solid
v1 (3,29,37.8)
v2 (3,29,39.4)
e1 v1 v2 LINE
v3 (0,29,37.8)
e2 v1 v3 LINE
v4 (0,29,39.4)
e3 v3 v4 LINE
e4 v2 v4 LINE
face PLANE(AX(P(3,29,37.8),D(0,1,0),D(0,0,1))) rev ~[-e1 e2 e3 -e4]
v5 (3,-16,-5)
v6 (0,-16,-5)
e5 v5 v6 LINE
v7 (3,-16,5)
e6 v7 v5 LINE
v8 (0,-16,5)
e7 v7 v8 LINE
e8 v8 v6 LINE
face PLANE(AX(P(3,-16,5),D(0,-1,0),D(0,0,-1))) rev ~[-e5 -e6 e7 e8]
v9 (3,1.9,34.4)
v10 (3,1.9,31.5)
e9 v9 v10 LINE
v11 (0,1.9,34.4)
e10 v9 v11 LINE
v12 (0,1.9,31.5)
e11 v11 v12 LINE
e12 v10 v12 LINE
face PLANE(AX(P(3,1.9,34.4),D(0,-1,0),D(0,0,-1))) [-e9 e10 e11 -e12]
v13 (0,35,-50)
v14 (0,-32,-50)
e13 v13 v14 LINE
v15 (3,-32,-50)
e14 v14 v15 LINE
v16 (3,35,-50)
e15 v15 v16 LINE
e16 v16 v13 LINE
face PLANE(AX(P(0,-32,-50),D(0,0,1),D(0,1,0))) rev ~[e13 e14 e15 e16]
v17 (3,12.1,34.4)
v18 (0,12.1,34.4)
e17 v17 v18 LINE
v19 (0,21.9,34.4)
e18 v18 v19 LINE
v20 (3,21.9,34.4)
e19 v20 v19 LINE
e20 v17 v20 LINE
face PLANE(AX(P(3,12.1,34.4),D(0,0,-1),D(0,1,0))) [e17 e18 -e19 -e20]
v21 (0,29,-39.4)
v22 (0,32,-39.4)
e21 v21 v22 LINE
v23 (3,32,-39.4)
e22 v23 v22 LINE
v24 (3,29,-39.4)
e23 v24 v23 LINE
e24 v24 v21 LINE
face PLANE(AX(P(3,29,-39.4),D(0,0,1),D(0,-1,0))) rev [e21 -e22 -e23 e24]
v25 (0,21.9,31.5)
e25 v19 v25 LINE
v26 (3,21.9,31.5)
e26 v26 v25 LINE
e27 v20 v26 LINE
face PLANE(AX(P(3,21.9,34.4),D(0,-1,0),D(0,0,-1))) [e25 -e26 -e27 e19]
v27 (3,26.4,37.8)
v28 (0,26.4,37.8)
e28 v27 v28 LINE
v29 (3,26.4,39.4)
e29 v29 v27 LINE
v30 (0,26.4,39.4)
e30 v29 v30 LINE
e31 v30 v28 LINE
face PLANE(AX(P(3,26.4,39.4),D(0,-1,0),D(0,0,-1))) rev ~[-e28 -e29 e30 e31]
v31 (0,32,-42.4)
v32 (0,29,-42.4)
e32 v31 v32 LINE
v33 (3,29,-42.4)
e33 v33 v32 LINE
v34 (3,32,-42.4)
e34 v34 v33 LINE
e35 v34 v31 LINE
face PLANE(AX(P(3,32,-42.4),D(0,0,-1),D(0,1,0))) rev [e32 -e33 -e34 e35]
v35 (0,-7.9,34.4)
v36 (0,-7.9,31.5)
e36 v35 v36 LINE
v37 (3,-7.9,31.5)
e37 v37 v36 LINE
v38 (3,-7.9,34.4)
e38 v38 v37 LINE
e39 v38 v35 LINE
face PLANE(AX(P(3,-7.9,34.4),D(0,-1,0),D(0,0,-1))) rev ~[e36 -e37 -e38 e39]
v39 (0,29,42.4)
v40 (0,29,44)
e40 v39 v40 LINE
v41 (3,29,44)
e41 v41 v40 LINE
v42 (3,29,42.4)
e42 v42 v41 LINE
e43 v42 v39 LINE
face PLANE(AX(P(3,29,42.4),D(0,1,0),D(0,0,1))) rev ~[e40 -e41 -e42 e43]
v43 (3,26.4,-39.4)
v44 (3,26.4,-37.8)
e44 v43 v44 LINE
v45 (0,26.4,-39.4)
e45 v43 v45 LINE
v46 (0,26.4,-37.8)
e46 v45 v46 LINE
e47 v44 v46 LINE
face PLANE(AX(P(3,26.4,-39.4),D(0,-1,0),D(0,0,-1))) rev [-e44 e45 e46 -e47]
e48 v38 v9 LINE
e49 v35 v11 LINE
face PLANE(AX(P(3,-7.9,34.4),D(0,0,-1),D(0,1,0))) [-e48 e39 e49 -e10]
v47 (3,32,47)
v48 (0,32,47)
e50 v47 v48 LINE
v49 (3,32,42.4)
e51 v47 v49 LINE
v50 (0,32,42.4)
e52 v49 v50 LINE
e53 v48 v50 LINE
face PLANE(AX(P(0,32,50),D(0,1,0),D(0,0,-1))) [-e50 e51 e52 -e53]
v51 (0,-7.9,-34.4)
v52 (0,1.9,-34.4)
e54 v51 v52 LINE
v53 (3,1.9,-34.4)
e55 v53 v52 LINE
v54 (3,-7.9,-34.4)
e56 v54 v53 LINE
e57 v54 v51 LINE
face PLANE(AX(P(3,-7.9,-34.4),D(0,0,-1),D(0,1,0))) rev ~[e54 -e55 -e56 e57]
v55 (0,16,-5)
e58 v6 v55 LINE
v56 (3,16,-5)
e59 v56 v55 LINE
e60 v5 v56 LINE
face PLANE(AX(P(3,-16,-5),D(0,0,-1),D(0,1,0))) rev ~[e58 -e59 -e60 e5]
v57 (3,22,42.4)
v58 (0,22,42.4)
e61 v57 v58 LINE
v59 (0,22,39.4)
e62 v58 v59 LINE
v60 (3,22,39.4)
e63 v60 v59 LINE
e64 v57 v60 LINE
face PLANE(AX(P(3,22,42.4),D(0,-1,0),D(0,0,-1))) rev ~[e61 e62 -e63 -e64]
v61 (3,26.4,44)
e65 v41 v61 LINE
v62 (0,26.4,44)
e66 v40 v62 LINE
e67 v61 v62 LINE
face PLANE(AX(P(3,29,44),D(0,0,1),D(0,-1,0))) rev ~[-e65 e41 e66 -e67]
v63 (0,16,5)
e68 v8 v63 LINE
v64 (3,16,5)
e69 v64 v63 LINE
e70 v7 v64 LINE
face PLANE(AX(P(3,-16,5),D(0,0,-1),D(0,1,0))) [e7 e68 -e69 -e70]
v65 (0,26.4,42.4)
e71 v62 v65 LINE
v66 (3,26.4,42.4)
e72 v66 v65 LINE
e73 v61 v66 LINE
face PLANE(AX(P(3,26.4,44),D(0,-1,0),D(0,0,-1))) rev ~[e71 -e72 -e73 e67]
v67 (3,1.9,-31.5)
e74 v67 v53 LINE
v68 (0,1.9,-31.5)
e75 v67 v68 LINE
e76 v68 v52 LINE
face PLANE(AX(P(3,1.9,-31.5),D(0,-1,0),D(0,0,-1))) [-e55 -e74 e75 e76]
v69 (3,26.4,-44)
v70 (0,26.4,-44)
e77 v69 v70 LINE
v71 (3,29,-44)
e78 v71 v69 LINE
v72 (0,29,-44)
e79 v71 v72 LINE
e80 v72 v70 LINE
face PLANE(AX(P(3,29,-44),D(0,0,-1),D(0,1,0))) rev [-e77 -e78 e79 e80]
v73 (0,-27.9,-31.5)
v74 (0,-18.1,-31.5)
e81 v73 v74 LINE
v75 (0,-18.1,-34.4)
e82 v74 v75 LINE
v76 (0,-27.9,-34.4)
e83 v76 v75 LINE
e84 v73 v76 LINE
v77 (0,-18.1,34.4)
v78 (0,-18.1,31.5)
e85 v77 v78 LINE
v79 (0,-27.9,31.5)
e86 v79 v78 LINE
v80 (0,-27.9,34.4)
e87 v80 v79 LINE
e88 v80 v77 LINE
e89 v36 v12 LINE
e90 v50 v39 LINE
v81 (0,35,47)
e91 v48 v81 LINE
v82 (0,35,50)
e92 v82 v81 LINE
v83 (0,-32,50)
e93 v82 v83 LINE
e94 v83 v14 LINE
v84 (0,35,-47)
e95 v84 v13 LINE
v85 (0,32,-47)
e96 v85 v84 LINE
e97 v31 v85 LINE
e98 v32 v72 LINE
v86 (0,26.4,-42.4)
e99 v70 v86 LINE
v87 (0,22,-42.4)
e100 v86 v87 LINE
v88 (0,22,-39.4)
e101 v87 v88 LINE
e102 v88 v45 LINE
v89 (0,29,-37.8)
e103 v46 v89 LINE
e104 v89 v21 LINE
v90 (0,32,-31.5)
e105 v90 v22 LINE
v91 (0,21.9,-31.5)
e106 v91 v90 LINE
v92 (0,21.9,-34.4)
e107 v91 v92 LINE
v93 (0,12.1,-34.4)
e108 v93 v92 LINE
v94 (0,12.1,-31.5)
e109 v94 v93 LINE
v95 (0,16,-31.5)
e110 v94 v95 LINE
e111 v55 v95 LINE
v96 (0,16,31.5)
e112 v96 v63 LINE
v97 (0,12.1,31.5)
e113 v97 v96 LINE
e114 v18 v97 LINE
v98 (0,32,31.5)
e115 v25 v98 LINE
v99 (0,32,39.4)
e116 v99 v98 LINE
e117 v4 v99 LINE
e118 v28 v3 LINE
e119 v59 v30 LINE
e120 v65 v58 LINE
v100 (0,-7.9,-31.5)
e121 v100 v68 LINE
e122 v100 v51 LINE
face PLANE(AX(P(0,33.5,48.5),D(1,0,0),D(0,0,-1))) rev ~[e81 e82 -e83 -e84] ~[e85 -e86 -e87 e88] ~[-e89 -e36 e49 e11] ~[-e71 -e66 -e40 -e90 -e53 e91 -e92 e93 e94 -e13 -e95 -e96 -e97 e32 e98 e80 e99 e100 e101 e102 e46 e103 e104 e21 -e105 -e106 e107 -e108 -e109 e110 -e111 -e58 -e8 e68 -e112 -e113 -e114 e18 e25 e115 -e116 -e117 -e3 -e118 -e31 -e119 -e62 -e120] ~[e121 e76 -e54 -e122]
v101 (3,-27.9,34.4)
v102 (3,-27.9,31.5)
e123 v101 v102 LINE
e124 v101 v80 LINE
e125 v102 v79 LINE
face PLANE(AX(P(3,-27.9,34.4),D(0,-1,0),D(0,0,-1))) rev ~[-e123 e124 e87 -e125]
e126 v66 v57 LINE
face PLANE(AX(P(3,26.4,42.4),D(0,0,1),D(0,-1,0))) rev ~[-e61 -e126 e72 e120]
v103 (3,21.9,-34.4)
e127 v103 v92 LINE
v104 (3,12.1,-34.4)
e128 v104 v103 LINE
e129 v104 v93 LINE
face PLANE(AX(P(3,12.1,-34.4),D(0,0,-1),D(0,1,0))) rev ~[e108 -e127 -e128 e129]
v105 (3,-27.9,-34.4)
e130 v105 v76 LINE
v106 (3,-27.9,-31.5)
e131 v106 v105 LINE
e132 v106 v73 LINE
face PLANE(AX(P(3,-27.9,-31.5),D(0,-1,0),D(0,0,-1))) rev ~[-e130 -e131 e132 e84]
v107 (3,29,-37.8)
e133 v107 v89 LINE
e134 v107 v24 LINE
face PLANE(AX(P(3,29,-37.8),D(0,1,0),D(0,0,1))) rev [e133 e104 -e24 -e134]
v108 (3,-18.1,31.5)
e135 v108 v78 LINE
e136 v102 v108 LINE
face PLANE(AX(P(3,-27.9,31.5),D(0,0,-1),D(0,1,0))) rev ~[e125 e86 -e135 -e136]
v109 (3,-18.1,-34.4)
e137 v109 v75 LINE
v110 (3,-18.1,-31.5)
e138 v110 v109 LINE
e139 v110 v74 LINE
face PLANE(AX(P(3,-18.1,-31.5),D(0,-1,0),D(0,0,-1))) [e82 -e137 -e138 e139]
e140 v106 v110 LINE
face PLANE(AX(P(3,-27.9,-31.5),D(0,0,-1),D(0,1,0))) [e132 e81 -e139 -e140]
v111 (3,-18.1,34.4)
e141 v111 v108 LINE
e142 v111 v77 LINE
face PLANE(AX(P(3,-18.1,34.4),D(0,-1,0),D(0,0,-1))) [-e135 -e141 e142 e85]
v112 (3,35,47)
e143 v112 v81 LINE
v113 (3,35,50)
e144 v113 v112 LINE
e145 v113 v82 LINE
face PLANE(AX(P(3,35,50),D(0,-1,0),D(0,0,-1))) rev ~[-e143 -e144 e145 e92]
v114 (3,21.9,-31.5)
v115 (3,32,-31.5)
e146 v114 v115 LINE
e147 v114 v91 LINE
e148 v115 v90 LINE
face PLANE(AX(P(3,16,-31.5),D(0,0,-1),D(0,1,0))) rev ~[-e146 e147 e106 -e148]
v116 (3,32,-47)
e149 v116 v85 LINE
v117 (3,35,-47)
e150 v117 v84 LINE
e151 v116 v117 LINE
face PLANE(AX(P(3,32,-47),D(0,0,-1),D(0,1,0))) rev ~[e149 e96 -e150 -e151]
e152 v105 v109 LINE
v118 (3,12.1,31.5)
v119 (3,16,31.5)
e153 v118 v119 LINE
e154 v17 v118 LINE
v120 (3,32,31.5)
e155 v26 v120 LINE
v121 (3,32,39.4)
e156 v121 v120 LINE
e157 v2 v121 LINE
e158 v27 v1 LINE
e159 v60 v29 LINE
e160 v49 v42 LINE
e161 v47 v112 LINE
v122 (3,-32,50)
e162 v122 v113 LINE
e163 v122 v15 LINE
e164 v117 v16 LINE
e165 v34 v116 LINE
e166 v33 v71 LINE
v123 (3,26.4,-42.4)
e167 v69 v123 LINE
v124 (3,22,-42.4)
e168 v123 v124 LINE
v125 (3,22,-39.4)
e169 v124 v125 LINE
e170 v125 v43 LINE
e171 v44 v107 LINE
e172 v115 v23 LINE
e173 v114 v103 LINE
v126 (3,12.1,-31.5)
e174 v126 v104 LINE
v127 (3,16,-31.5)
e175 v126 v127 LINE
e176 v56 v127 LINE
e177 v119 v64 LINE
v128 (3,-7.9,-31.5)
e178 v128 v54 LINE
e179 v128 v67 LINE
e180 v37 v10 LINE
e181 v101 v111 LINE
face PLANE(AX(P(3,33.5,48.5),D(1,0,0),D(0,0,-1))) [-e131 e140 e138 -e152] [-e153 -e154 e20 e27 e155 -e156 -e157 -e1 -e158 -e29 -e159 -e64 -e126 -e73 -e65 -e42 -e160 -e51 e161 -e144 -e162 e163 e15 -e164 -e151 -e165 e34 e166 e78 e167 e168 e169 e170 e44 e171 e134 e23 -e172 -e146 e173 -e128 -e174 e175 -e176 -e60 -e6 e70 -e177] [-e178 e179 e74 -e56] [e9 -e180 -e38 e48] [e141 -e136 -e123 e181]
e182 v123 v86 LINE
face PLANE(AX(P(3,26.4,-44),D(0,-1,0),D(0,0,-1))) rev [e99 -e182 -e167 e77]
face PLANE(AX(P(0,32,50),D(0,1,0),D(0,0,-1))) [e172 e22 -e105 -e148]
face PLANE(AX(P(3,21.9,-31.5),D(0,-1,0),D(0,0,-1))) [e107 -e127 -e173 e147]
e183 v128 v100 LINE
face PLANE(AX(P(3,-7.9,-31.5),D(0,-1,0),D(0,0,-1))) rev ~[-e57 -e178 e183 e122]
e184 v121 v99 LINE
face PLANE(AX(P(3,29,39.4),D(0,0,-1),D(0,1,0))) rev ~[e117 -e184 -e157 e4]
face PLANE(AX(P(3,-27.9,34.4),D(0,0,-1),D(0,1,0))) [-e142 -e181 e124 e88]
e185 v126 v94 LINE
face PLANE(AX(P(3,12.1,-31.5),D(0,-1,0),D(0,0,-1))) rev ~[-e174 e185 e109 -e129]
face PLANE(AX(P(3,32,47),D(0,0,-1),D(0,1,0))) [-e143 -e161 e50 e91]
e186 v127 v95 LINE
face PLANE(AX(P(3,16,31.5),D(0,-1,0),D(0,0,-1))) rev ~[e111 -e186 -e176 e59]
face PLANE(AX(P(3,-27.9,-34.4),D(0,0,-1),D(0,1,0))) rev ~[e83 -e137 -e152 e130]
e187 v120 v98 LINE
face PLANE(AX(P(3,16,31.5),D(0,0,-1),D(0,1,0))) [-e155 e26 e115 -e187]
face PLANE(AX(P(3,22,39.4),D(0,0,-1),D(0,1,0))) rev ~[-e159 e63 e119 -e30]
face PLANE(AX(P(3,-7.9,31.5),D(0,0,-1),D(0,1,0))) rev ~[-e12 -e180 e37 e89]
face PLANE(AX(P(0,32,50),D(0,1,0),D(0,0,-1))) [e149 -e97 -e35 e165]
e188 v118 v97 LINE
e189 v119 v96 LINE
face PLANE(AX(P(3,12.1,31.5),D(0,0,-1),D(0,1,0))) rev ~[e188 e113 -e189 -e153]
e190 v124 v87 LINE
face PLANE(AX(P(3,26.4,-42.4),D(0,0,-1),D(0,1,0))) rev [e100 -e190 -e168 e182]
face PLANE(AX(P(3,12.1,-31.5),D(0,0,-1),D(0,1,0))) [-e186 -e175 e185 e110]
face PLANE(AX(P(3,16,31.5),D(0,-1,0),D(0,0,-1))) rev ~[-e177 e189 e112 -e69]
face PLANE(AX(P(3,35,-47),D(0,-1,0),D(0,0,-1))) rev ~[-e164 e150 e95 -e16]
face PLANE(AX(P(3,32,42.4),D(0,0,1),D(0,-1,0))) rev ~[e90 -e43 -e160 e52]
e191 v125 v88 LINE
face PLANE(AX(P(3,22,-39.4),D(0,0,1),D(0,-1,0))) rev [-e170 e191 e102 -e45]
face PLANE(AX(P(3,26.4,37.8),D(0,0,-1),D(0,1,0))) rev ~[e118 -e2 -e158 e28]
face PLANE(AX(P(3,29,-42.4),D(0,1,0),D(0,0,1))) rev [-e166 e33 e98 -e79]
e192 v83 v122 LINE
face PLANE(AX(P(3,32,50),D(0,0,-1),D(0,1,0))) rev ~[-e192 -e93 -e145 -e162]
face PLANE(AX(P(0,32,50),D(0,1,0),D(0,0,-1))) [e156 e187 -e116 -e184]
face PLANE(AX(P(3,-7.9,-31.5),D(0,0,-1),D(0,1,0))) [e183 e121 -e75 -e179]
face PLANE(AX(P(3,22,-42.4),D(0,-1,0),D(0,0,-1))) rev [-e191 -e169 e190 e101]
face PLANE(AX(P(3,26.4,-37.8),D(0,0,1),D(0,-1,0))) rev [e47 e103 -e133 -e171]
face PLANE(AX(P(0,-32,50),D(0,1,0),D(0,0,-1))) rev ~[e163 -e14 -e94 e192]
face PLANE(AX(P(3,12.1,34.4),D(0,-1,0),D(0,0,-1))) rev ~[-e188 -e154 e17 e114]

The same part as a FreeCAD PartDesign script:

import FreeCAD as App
import Part
import Sketcher
Q = App.Units.Quantity


def add_polygon(sketch, points):
    """Adds a closed chain of lines whose ends are joined by coincident constraints."""
    first, n = sketch.GeometryCount, len(points)
    for a, b in zip(points, points[1:] + points[:1]):
        sketch.addGeometry(Part.LineSegment(App.Vector(*a, 0), App.Vector(*b, 0)), False)
    for i in range(n):
        sketch.addConstraint(Sketcher.Constraint("Coincident", first + i, 2, first + (i + 1) % n, 1))

doc = App.newDocument("Part")
body = doc.addObject("PartDesign::Body", "Body")

# Sketch on YZ plane
sketch1 = body.newObject("Sketcher::SketchObject", "Sketch")
sketch1.AttachmentSupport = (doc.getObject("YZ_Plane"), [""])
sketch1.MapMode = "FlatFace"
add_polygon(sketch1, [(32, 50), (-32, 50), (-32, -50), (32, -50)])  # lines 0-3
sketch1.addConstraint(Sketcher.Constraint("Horizontal", 0))
sketch1.addConstraint(Sketcher.Constraint("Vertical", 1))
sketch1.addConstraint(Sketcher.Constraint("Horizontal", 2))
sketch1.addConstraint(Sketcher.Constraint("Vertical", 3))
sketch1.addConstraint(Sketcher.Constraint("Symmetric", 0, 2, 2, 2, -1, 1))
sketch1.addConstraint(Sketcher.Constraint("DistanceX", 0, 2, 0, 1, Q("64 mm")))
sketch1.addConstraint(Sketcher.Constraint("DistanceY", 1, 2, 1, 1, Q("100 mm")))
pad1 = body.newObject("PartDesign::Pad", "Pad")
pad1.Profile = sketch1
pad1.Length = 3

# Sketch on YZ plane
sketch2 = body.newObject("Sketcher::SketchObject", "Sketch001")
sketch2.AttachmentSupport = (doc.getObject("YZ_Plane"), [""])
sketch2.MapMode = "FlatFace"
sketch2.AttachmentOffset = App.Placement(App.Vector(0, 0, 3), App.Rotation())
add_polygon(sketch2, [(21.9, 34.4), (12.1, 34.4), (12.1, 31.5), (21.9, 31.5)])  # lines 0-3
add_polygon(sketch2, [(1.9, 34.4), (-7.9, 34.4), (-7.9, 31.5), (1.9, 31.5)])  # lines 4-7
add_polygon(sketch2, [(-18.1, 34.4), (-27.9, 34.4), (-27.9, 31.5), (-18.1, 31.5)])  # lines 8-11
add_polygon(sketch2, [(-18.1, -31.5), (-27.9, -31.5), (-27.9, -34.4), (-18.1, -34.4)])  # lines 12-15
add_polygon(sketch2, [(1.9, -31.5), (-7.9, -31.5), (-7.9, -34.4), (1.9, -34.4)])  # lines 16-19
add_polygon(sketch2, [(21.9, -31.5), (12.1, -31.5), (12.1, -34.4), (21.9, -34.4)])  # lines 20-23
sketch2.addConstraint(Sketcher.Constraint("Horizontal", 0))
sketch2.addConstraint(Sketcher.Constraint("Vertical", 1))
sketch2.addConstraint(Sketcher.Constraint("Horizontal", 2))
sketch2.addConstraint(Sketcher.Constraint("Vertical", 3))
sketch2.addConstraint(Sketcher.Constraint("Horizontal", 4))
sketch2.addConstraint(Sketcher.Constraint("Vertical", 5))
sketch2.addConstraint(Sketcher.Constraint("Horizontal", 6))
sketch2.addConstraint(Sketcher.Constraint("Vertical", 7))
sketch2.addConstraint(Sketcher.Constraint("Horizontal", 8))
sketch2.addConstraint(Sketcher.Constraint("Vertical", 9))
sketch2.addConstraint(Sketcher.Constraint("Horizontal", 10))
sketch2.addConstraint(Sketcher.Constraint("Vertical", 11))
sketch2.addConstraint(Sketcher.Constraint("Horizontal", 12))
sketch2.addConstraint(Sketcher.Constraint("Vertical", 13))
sketch2.addConstraint(Sketcher.Constraint("Horizontal", 14))
sketch2.addConstraint(Sketcher.Constraint("Vertical", 15))
sketch2.addConstraint(Sketcher.Constraint("Horizontal", 16))
sketch2.addConstraint(Sketcher.Constraint("Vertical", 17))
sketch2.addConstraint(Sketcher.Constraint("Horizontal", 18))
sketch2.addConstraint(Sketcher.Constraint("Vertical", 19))
sketch2.addConstraint(Sketcher.Constraint("Horizontal", 20))
sketch2.addConstraint(Sketcher.Constraint("Vertical", 21))
sketch2.addConstraint(Sketcher.Constraint("Horizontal", 22))
sketch2.addConstraint(Sketcher.Constraint("Vertical", 23))
sketch2.addConstraint(Sketcher.Constraint("Symmetric", 9, 2, 12, 2, -1))
sketch2.addConstraint(Sketcher.Constraint("Symmetric", 11, 2, 14, 2, -1))
sketch2.addConstraint(Sketcher.Constraint("Symmetric", 5, 2, 16, 2, -1))
sketch2.addConstraint(Sketcher.Constraint("Symmetric", 7, 2, 18, 2, -1))
sketch2.addConstraint(Sketcher.Constraint("Symmetric", 1, 2, 20, 2, -1))
sketch2.addConstraint(Sketcher.Constraint("Symmetric", 3, 2, 22, 2, -1))
sketch2.addConstraint(Sketcher.Constraint("Horizontal", 3, 2, 4, 2))
sketch2.addConstraint(Sketcher.Constraint("Horizontal", 2, 2, 5, 2))
sketch2.addConstraint(Sketcher.Constraint("Horizontal", 7, 2, 8, 2))
sketch2.addConstraint(Sketcher.Constraint("Horizontal", 6, 2, 9, 2))
sketch2.addConstraint(Sketcher.Constraint("Equal", 2, 4))
sketch2.addConstraint(Sketcher.Constraint("Equal", 6, 8))
sketch2.addConstraint(Sketcher.Constraint("DistanceX", 0, 2, 0, 1, Q("9.8 mm")))
sketch2.addConstraint(Sketcher.Constraint("DistanceY", 1, 2, 1, 1, Q("2.9 mm")))
sketch2.addConstraint(Sketcher.Constraint("DistanceX", 4, 2, 0, 2, Q("20 mm")))
sketch2.addConstraint(Sketcher.Constraint("DistanceX", 8, 2, 4, 2, Q("20 mm")))
sketch2.addConstraint(Sketcher.Constraint("DistanceY", 12, 2, 9, 2, Q("63 mm")))
sketch2.addConstraint(Sketcher.Constraint("DistanceX", -1, 1, 0, 2, Q("12.1 mm")))
pocket1 = body.newObject("PartDesign::Pocket", "Pocket")
pocket1.Profile = sketch2
pocket1.Length = 3

# Sketch on YZ plane
sketch3 = body.newObject("Sketcher::SketchObject", "Sketch002")
sketch3.AttachmentSupport = (doc.getObject("YZ_Plane"), [""])
sketch3.MapMode = "FlatFace"
sketch3.AttachmentOffset = App.Placement(App.Vector(0, 0, 3), App.Rotation())
add_polygon(sketch3, [(32, 42.4), (29, 42.4), (29, 44), (26.4, 44), (26.4, 42.4), (22, 42.4), (22, 39.4), (26.4, 39.4), (26.4, 37.8), (29, 37.8), (29, 39.4), (32, 39.4)])  # lines 0-11
sketch3.addConstraint(Sketcher.Constraint("Horizontal", 0))
sketch3.addConstraint(Sketcher.Constraint("Vertical", 1))
sketch3.addConstraint(Sketcher.Constraint("Horizontal", 2))
sketch3.addConstraint(Sketcher.Constraint("Vertical", 3))
sketch3.addConstraint(Sketcher.Constraint("Horizontal", 4))
sketch3.addConstraint(Sketcher.Constraint("Vertical", 5))
sketch3.addConstraint(Sketcher.Constraint("Horizontal", 6))
sketch3.addConstraint(Sketcher.Constraint("Vertical", 7))
sketch3.addConstraint(Sketcher.Constraint("Horizontal", 8))
sketch3.addConstraint(Sketcher.Constraint("Vertical", 9))
sketch3.addConstraint(Sketcher.Constraint("Horizontal", 10))
sketch3.addConstraint(Sketcher.Constraint("Vertical", 11))
sketch3.addConstraint(Sketcher.Constraint("Horizontal", 0, 2, 3, 2))
sketch3.addConstraint(Sketcher.Constraint("Horizontal", 6, 2, 9, 2))
sketch3.addConstraint(Sketcher.Constraint("Vertical", 3, 2, 6, 2))
sketch3.addConstraint(Sketcher.Constraint("Vertical", 1, 2, 8, 2))
sketch3.addConstraint(Sketcher.Constraint("Equal", 10, 5))
sketch3.addConstraint(Sketcher.Constraint("Equal", 3, 7))
sketch3.addConstraint(Sketcher.Constraint("DistanceX", 0, 2, 0, 1, Q("3 mm")))
sketch3.addConstraint(Sketcher.Constraint("DistanceX", 2, 2, 2, 1, Q("2.6 mm")))
sketch3.addConstraint(Sketcher.Constraint("DistanceX", 4, 2, 4, 1, Q("4.4 mm")))
sketch3.addConstraint(Sketcher.Constraint("DistanceY", 1, 1, 1, 2, Q("1.6 mm")))
sketch3.addConstraint(Sketcher.Constraint("DistanceX", -1, 1, 0, 2, Q("29 mm")))
sketch3.addConstraint(Sketcher.Constraint("DistanceY", -1, 1, 1, 2, Q("44 mm")))
pocket2 = body.newObject("PartDesign::Pocket", "Pocket001")
pocket2.Profile = sketch3
pocket2.Length = 10
doc.recompute()

mirrored = body.newObject("PartDesign::Mirrored", "Mirrored")
mirrored.Originals = [pocket2]
mirrored.MirrorPlane = (doc.getObject("XY_Plane"), [""])
body.Tip = mirrored

# Sketch on YZ plane
sketch4 = body.newObject("Sketcher::SketchObject", "Sketch003")
sketch4.AttachmentSupport = (doc.getObject("YZ_Plane"), [""])
sketch4.MapMode = "FlatFace"
sketch4.AttachmentOffset = App.Placement(App.Vector(0, 0, 3), App.Rotation())
add_polygon(sketch4, [(32, 31.5), (16, 31.5), (16, -31.5), (32, -31.5)])  # lines 0-3
sketch4.addConstraint(Sketcher.Constraint("Horizontal", 0))
sketch4.addConstraint(Sketcher.Constraint("Vertical", 1))
sketch4.addConstraint(Sketcher.Constraint("Horizontal", 2))
sketch4.addConstraint(Sketcher.Constraint("Vertical", 3))
sketch4.addConstraint(Sketcher.Constraint("DistanceX", 0, 2, 0, 1, Q("16 mm")))
sketch4.addConstraint(Sketcher.Constraint("DistanceY", 1, 2, 1, 1, Q("63 mm")))
sketch4.addConstraint(Sketcher.Constraint("DistanceX", -1, 1, 0, 2, Q("16 mm")))
sketch4.addConstraint(Sketcher.Constraint("DistanceY", -1, 1, 0, 2, Q("31.5 mm")))
pocket3 = body.newObject("PartDesign::Pocket", "Pocket002")
pocket3.Profile = sketch4
pocket3.Length = 10

# Sketch on YZ plane
sketch5 = body.newObject("Sketcher::SketchObject", "Sketch004")
sketch5.AttachmentSupport = (doc.getObject("YZ_Plane"), [""])
sketch5.MapMode = "FlatFace"
sketch5.AttachmentOffset = App.Placement(App.Vector(0, 0, 3), App.Rotation())
add_polygon(sketch5, [(16, 5), (-16, 5), (-16, -5), (16, -5)])  # lines 0-3
sketch5.addConstraint(Sketcher.Constraint("Horizontal", 0))
sketch5.addConstraint(Sketcher.Constraint("Vertical", 1))
sketch5.addConstraint(Sketcher.Constraint("Horizontal", 2))
sketch5.addConstraint(Sketcher.Constraint("Vertical", 3))
sketch5.addConstraint(Sketcher.Constraint("Symmetric", 0, 2, 2, 2, -1, 1))
sketch5.addConstraint(Sketcher.Constraint("DistanceX", 0, 2, 0, 1, Q("32 mm")))
sketch5.addConstraint(Sketcher.Constraint("DistanceY", 1, 2, 1, 1, Q("10 mm")))
pocket4 = body.newObject("PartDesign::Pocket", "Pocket003")
pocket4.Profile = sketch5
pocket4.Length = 10

# Sketch on YZ plane
sketch6 = body.newObject("Sketcher::SketchObject", "Sketch005")
sketch6.AttachmentSupport = (doc.getObject("YZ_Plane"), [""])
sketch6.MapMode = "FlatFace"
sketch6.AttachmentOffset = App.Placement(App.Vector(0, 0, 3), App.Rotation())
add_polygon(sketch6, [(35, 50), (32, 50), (32, 47), (35, 47)])  # lines 0-3
add_polygon(sketch6, [(35, -47), (32, -47), (32, -50), (35, -50)])  # lines 4-7
sketch6.addConstraint(Sketcher.Constraint("Horizontal", 0))
sketch6.addConstraint(Sketcher.Constraint("Vertical", 1))
sketch6.addConstraint(Sketcher.Constraint("Horizontal", 2))
sketch6.addConstraint(Sketcher.Constraint("Vertical", 3))
sketch6.addConstraint(Sketcher.Constraint("Horizontal", 4))
sketch6.addConstraint(Sketcher.Constraint("Vertical", 5))
sketch6.addConstraint(Sketcher.Constraint("Horizontal", 6))
sketch6.addConstraint(Sketcher.Constraint("Vertical", 7))
sketch6.addConstraint(Sketcher.Constraint("Symmetric", 1, 2, 4, 2, -1))
sketch6.addConstraint(Sketcher.Constraint("Symmetric", 3, 2, 6, 2, -1))
sketch6.addConstraint(Sketcher.Constraint("Equal", 6, 1))
sketch6.addConstraint(Sketcher.Constraint("DistanceX", 0, 2, 0, 1, Q("3 mm")))
sketch6.addConstraint(Sketcher.Constraint("DistanceX", -1, 1, 0, 2, Q("32 mm")))
sketch6.addConstraint(Sketcher.Constraint("DistanceY", -1, 1, 0, 2, Q("50 mm")))
pad2 = body.newObject("PartDesign::Pad", "Pad001")
pad2.Profile = sketch6
pad2.Length = 3
pad2.Reversed = True

doc.recompute()
